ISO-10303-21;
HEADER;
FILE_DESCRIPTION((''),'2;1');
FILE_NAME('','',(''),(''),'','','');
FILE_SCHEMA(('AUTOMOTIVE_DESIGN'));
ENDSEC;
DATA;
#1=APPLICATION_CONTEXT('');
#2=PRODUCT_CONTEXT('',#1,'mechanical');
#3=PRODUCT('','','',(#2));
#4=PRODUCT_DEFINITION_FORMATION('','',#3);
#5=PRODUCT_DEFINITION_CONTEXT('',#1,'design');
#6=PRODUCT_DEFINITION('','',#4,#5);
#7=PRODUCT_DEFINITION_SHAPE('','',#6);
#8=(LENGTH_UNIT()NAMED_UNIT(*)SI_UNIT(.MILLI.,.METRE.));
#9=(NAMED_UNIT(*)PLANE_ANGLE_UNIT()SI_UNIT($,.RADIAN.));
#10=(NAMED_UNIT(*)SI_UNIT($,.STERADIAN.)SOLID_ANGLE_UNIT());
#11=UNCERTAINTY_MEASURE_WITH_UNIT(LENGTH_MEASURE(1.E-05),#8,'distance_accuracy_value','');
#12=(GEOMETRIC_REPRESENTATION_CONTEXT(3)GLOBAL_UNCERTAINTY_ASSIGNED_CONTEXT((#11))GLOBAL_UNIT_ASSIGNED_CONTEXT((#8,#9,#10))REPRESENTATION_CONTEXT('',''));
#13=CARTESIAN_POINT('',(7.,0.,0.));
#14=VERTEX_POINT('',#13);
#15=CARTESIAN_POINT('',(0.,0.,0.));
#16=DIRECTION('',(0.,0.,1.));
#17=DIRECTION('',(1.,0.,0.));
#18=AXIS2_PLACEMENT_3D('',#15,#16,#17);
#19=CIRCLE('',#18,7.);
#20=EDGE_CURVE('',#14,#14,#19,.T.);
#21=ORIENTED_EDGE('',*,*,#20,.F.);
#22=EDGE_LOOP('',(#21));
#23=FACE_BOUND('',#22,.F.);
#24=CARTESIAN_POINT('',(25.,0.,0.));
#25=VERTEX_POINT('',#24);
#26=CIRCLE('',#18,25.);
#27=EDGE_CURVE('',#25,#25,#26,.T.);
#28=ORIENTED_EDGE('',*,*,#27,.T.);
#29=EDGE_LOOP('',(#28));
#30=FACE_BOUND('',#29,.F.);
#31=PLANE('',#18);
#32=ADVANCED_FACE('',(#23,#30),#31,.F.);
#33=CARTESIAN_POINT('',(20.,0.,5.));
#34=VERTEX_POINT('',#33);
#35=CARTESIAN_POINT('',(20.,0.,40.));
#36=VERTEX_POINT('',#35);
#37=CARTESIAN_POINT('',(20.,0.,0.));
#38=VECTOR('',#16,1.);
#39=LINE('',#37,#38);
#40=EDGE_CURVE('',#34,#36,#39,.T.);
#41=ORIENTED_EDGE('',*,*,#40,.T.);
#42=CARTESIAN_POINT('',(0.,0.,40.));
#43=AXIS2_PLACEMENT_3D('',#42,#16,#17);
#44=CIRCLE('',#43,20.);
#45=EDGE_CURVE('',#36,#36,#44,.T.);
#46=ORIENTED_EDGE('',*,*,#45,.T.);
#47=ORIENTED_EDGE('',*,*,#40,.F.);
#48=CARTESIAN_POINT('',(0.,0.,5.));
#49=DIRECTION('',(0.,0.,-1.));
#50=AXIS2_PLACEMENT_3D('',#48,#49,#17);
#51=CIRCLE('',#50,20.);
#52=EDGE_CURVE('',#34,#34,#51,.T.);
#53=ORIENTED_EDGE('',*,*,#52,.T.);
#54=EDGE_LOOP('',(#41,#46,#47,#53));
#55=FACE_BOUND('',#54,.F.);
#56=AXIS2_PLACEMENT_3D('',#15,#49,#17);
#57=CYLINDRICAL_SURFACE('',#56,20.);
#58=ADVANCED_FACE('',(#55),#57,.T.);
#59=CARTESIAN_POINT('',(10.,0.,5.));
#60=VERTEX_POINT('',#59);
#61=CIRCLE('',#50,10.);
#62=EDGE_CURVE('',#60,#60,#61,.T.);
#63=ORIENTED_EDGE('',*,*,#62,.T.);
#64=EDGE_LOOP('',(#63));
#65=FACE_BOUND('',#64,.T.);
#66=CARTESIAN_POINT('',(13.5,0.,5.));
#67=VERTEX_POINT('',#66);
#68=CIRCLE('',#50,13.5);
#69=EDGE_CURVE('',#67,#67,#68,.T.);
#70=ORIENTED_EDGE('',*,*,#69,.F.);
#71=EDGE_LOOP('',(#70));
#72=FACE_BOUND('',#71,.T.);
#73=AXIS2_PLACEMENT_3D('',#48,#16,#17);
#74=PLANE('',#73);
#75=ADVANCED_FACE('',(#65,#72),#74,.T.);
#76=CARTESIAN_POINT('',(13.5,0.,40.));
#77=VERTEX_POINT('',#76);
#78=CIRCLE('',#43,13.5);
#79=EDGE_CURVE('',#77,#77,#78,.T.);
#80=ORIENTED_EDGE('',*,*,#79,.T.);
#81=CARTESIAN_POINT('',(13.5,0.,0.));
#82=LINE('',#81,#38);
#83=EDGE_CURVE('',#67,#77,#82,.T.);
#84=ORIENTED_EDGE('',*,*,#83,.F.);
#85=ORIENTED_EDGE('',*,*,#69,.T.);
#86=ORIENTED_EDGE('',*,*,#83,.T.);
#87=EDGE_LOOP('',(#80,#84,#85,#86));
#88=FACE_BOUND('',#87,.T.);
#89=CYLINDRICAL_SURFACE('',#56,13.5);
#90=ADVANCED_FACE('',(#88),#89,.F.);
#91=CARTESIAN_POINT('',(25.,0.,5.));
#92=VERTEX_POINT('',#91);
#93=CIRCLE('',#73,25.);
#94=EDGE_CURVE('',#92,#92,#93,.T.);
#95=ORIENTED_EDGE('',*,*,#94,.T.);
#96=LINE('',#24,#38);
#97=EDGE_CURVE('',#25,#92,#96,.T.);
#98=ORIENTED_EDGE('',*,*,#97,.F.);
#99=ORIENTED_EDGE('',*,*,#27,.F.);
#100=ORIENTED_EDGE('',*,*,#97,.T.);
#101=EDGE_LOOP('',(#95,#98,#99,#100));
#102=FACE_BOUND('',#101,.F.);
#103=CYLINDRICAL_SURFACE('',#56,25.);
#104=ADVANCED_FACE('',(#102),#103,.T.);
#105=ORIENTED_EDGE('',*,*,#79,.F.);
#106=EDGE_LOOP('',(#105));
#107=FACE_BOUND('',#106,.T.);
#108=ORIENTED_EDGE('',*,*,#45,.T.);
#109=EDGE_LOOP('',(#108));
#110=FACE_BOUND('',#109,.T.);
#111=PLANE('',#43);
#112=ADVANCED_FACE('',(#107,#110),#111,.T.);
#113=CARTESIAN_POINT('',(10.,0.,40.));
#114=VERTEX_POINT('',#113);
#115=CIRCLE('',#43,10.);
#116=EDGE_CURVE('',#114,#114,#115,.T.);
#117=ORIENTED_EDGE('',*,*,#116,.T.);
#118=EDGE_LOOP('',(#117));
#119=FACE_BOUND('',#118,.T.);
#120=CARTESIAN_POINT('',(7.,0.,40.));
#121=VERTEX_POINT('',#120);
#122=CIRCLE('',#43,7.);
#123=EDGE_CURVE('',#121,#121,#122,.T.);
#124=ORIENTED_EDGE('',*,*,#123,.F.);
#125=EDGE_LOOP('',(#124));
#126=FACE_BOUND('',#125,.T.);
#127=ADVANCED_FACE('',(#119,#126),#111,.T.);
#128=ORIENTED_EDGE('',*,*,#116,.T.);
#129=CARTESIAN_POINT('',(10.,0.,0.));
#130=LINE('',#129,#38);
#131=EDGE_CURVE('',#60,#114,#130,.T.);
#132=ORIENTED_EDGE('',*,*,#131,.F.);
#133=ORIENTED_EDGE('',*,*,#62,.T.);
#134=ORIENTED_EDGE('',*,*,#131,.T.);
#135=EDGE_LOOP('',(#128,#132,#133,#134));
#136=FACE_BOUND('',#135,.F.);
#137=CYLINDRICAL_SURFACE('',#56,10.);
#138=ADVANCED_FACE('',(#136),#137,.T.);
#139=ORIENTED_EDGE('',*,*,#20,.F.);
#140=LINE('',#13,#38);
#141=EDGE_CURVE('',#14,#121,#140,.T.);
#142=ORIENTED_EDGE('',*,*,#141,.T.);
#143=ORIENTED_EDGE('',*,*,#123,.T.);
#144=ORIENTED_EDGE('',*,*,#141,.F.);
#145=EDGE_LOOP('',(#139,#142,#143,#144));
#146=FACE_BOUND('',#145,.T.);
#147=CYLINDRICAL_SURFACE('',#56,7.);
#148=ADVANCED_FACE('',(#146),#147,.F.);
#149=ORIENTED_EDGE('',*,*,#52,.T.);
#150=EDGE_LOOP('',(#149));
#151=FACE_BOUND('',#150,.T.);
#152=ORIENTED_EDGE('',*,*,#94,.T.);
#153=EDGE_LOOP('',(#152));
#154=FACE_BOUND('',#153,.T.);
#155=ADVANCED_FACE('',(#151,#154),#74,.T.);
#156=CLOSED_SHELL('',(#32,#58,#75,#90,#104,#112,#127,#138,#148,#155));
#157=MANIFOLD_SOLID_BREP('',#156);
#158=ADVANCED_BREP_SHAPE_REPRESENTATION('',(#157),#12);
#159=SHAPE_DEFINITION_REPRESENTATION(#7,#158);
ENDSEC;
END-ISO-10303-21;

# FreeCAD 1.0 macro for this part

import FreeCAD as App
import Part
import Sketcher
from FreeCAD import Vector
Q = App.Units.Quantity

doc = App.newDocument("Part")
body = doc.addObject("PartDesign::Body", "Body")

# Sketch on XY plane
sketch1 = body.newObject("Sketcher::SketchObject", "Sketch")
sketch1.AttachmentSupport = (doc.getObject("XY_Plane"), [""])
sketch1.MapMode = "FlatFace"
sketch1.addGeometry([
    Part.Circle(Vector(0, 0, 0), Vector(0, 0, 1), 25),
    Part.Circle(Vector(0, 0, 0), Vector(0, 0, 1), 7),
], False)
sketch1.addConstraint([
    Sketcher.Constraint("Coincident", 0, 3, -1, 1),
    Sketcher.Constraint("Coincident", 1, 3, -1, 1),
    Sketcher.Constraint("Diameter", 0, Q("50 mm")),
    Sketcher.Constraint("Diameter", 1, Q("14 mm")),
])
pad1 = body.newObject("PartDesign::Pad", "Pad")
pad1.Profile = sketch1
pad1.Length = 5

# Sketch on XY plane
sketch2 = body.newObject("Sketcher::SketchObject", "Sketch001")
sketch2.AttachmentSupport = (doc.getObject("XY_Plane"), [""])
sketch2.MapMode = "FlatFace"
sketch2.addGeometry([
    Part.Circle(Vector(0, 0, 0), Vector(0, 0, 1), 20),
    Part.Circle(Vector(0, 0, 0), Vector(0, 0, 1), 13.5),
], False)
sketch2.addConstraint([
    Sketcher.Constraint("Coincident", 0, 3, -1, 1),
    Sketcher.Constraint("Coincident", 1, 3, -1, 1),
    Sketcher.Constraint("Diameter", 0, Q("40 mm")),
    Sketcher.Constraint("Diameter", 1, Q("27 mm")),
])
pad2 = body.newObject("PartDesign::Pad", "Pad001")
pad2.Profile = sketch2
pad2.Length = 40

# Sketch on XY plane
sketch3 = body.newObject("Sketcher::SketchObject", "Sketch002")
sketch3.AttachmentSupport = (doc.getObject("XY_Plane"), [""])
sketch3.MapMode = "FlatFace"
sketch3.addGeometry([
    Part.Circle(Vector(0, 0, 0), Vector(0, 0, 1), 10),
    Part.Circle(Vector(0, 0, 0), Vector(0, 0, 1), 7),
], False)
sketch3.addConstraint([
    Sketcher.Constraint("Coincident", 0, 3, -1, 1),
    Sketcher.Constraint("Coincident", 1, 3, -1, 1),
    Sketcher.Constraint("Diameter", 0, Q("20 mm")),
    Sketcher.Constraint("Diameter", 1, Q("14 mm")),
])
pad3 = body.newObject("PartDesign::Pad", "Pad002")
pad3.Profile = sketch3
pad3.Length = 40

doc.recompute()
